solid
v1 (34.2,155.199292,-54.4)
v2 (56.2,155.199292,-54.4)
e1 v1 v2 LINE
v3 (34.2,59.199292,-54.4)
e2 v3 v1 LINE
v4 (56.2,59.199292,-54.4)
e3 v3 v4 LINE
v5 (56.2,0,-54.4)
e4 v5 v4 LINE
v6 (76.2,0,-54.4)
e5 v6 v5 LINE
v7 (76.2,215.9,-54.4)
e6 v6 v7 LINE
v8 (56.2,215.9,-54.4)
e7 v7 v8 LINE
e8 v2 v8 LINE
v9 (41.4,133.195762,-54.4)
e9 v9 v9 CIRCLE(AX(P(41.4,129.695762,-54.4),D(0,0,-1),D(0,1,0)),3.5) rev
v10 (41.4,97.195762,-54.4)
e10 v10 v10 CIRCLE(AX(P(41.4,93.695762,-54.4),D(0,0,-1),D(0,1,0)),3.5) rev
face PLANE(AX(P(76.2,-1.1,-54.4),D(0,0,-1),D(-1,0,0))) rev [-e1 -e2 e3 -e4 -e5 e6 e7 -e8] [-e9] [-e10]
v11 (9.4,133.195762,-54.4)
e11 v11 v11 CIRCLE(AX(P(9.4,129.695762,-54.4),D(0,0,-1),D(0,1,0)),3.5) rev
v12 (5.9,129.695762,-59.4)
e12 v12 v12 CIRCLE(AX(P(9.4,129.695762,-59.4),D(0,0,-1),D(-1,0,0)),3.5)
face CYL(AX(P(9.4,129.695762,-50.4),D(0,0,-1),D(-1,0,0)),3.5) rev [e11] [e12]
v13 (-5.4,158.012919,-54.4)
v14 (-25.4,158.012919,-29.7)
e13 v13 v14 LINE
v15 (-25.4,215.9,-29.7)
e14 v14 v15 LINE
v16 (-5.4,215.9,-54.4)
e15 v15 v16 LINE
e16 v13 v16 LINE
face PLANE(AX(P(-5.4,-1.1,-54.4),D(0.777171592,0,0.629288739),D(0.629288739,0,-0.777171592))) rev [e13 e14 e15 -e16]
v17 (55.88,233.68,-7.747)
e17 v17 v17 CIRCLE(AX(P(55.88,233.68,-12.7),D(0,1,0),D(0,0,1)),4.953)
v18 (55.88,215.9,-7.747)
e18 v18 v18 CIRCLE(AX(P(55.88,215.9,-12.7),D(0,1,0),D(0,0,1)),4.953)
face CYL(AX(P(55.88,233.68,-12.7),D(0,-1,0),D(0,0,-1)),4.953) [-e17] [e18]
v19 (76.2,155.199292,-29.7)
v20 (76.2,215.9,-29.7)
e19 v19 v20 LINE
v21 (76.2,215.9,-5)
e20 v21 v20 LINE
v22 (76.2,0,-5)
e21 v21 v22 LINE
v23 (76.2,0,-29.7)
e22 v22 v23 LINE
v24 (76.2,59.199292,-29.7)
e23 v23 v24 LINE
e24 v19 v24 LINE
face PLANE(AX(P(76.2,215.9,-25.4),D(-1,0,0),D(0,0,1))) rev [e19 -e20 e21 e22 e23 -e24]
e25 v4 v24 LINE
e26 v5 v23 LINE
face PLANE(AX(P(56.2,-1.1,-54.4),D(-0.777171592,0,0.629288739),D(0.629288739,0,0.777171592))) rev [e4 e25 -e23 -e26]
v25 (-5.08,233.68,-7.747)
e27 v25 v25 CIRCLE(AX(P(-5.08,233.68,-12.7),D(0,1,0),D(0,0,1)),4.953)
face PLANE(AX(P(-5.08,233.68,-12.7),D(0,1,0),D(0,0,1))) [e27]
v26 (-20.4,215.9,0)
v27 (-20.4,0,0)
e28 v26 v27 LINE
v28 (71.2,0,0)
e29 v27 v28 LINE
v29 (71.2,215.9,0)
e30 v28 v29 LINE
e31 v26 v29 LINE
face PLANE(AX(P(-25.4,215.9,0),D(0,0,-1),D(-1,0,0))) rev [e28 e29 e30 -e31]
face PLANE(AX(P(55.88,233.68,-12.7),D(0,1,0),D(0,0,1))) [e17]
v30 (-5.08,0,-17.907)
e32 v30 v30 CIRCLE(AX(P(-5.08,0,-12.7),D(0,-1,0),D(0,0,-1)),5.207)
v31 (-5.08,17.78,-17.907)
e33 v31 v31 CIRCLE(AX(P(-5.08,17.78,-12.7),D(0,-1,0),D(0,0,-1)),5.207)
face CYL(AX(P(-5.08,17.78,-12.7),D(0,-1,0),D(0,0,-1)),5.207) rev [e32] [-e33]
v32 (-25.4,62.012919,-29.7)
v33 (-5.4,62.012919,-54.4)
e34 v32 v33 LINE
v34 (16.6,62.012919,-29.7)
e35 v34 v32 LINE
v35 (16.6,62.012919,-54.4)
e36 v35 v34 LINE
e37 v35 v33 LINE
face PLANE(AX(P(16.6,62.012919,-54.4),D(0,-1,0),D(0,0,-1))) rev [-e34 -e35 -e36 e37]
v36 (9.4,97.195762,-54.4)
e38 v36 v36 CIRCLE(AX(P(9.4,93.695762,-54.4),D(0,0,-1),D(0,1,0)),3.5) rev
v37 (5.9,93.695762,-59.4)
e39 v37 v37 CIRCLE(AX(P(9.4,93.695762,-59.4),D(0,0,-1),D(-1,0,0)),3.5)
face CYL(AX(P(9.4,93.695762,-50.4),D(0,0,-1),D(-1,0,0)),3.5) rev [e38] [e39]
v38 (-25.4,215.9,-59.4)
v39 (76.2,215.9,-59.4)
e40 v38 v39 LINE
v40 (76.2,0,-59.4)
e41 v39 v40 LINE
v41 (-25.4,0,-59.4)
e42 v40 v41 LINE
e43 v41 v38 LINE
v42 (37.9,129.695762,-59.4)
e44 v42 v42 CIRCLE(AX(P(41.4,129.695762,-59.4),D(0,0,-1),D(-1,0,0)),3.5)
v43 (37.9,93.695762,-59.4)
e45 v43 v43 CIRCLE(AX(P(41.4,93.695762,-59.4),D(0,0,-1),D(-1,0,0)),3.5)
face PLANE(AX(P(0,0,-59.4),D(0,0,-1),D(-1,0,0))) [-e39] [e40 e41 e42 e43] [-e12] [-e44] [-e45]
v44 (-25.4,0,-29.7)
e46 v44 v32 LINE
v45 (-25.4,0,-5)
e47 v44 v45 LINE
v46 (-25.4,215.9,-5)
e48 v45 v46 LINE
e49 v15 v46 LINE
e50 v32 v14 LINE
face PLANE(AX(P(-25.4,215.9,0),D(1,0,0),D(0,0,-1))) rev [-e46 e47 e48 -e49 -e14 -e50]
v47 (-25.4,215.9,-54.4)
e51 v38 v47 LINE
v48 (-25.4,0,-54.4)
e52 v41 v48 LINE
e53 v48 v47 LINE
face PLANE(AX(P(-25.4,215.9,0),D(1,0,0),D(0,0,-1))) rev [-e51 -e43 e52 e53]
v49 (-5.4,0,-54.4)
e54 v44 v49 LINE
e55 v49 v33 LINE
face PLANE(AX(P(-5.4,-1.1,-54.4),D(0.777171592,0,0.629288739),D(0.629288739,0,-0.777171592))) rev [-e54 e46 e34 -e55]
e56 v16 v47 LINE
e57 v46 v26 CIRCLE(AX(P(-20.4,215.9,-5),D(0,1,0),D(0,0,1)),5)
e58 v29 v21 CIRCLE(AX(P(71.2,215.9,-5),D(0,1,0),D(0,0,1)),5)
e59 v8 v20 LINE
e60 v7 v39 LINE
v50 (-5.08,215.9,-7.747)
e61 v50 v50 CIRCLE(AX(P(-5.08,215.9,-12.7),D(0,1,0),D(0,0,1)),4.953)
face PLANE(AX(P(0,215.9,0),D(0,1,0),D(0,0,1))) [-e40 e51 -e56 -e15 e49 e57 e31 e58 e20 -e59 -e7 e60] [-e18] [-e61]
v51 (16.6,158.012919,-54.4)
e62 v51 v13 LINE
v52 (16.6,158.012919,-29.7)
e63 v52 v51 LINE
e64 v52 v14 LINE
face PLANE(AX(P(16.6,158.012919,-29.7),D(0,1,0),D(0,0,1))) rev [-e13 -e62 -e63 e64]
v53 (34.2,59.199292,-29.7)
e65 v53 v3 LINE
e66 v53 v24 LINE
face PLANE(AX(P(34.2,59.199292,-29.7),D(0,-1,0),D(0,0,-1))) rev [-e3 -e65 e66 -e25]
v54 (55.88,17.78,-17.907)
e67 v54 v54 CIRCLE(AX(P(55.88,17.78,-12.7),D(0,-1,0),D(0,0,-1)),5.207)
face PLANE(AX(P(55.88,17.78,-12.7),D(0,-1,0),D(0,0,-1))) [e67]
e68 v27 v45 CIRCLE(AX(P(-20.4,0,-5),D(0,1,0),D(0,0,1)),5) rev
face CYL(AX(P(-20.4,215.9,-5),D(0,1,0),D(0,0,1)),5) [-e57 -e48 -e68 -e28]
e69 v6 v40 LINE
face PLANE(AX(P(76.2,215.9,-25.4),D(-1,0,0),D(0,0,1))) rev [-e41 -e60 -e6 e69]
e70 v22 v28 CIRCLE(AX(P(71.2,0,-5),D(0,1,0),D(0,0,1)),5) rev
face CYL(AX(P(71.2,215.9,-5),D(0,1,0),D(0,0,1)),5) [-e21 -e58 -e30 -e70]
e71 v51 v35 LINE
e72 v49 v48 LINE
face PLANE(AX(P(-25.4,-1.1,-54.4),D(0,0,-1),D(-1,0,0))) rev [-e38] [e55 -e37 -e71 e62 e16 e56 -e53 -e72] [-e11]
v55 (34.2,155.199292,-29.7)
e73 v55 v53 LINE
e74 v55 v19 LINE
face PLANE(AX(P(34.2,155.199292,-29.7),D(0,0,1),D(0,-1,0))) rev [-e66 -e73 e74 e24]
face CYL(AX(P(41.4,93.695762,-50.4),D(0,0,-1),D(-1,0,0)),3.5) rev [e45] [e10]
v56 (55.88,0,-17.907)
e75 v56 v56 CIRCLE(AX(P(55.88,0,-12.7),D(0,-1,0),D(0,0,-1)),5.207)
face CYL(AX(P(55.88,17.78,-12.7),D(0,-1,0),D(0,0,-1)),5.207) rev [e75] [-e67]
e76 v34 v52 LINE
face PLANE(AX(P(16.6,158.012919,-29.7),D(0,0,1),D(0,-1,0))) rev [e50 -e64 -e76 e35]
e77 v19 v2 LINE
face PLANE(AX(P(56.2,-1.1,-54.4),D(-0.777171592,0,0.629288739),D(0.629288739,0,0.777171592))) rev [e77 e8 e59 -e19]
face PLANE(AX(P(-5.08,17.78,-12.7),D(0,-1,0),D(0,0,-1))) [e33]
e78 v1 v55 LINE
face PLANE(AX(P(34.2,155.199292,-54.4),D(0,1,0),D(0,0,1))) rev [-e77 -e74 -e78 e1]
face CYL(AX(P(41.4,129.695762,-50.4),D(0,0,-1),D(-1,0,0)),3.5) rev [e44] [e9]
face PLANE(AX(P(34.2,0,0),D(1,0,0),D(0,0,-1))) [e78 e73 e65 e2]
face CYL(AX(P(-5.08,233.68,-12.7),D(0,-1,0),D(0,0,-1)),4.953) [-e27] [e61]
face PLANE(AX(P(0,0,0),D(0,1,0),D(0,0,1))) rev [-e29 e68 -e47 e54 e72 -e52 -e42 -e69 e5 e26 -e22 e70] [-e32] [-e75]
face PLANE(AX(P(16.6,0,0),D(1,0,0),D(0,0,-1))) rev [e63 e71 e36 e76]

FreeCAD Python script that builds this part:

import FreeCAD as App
import Part
import Sketcher


def edges_at(feature, points):
    """Names of the edges that pass closest to the given points."""
    edges = feature.Shape.Edges
    near = lambda p: min(range(len(edges)), key=lambda i: edges[i].distToShape(Part.Vertex(*p))[0])
    return sorted({f"Edge{near(p) + 1}" for p in points})

doc = App.newDocument("Part")
body = doc.addObject("PartDesign::Body", "Body")

sketch1 = body.newObject("Sketcher::SketchObject", "Sketch")
sketch1.AttachmentSupport = (doc.getObject("XZ_Plane"), [""])
sketch1.MapMode = "FlatFace"
sketch1.addGeometry([
    Part.LineSegment(App.Vector(-25, -25, 0), App.Vector(-25, 0, 0)),
    Part.LineSegment(App.Vector(-25, 0, 0), App.Vector(76, 0, 0)),
    Part.LineSegment(App.Vector(76, 0, 0), App.Vector(76, -25, 0)),
    Part.LineSegment(App.Vector(76, -25, 0), App.Vector(-25, -25, 0)),
], False)
sketch1.addConstraint([
    Sketcher.Constraint("Coincident", 0, 2, 1, 1),
    Sketcher.Constraint("Coincident", 1, 2, 2, 1),
    Sketcher.Constraint("Coincident", 2, 2, 3, 1),
    Sketcher.Constraint("Coincident", 3, 2, 0, 1),
    Sketcher.Constraint("Vertical", 0),
    Sketcher.Constraint("Horizontal", 1),
    Sketcher.Constraint("Vertical", 2),
    Sketcher.Constraint("Horizontal", 3),
    Sketcher.Constraint("PointOnObject", 0, 2, -1),
    Sketcher.Constraint("DistanceX", 1, 1, 1, 2, 101.6),
    Sketcher.Constraint("DistanceY", 0, 1, 0, 2, 25.4),
    Sketcher.Constraint("DistanceX", 0, 2, -1, 1, 25.4),
])
pad1 = body.newObject("PartDesign::Pad", "Pad")
pad1.Profile = sketch1
pad1.Length = 215.9
pad1.Reversed = True

sketch2 = body.newObject("Sketcher::SketchObject", "Sketch001")
sketch2.AttachmentSupport = (doc.getObject("XZ_Plane"), [""])
sketch2.MapMode = "FlatFace"
sketch2.addGeometry([
    Part.Circle(App.Vector(-5, -13, 0), App.Vector(0, 0, 1), 5),
    Part.Circle(App.Vector(56, -13, 0), App.Vector(0, 0, 1), 5),
], False)
sketch2.addConstraint([
    Sketcher.Constraint("Equal", 0, 1),
    Sketcher.Constraint("Horizontal", 0, 3, 1, 3),
    Sketcher.Constraint("Diameter", 0, 10.414),
    Sketcher.Constraint("DistanceY", 0, 3, -1, 1, 12.7),
    Sketcher.Constraint("DistanceX", 0, 3, -1, 1, 5.08),
    Sketcher.Constraint("DistanceX", -1, 1, 1, 3, 55.88),
])
pocket1 = body.newObject("PartDesign::Pocket", "Pocket")
pocket1.Profile = sketch2
pocket1.Length = 17.78

sketch3 = body.newObject("Sketcher::SketchObject", "Sketch002")
sketch3.AttachmentSupport = (doc.getObject("XZ_Plane"), [""])
sketch3.MapMode = "FlatFace"
sketch3.AttachmentOffset = App.Placement(App.Vector(0, 0, -215.9), App.Rotation())
sketch3.addGeometry([
    Part.Circle(App.Vector(-5.1, -12.7, 0), App.Vector(0, 0, 1), 5),
    Part.Circle(App.Vector(55.9, -12.7, 0), App.Vector(0, 0, 1), 5),
], False)
sketch3.addConstraint([
    Sketcher.Constraint("Equal", 0, 1),
    Sketcher.Constraint("Horizontal", 0, 3, 1, 3),
    Sketcher.Constraint("Diameter", 0, 9.906),
    Sketcher.Constraint("DistanceY", 0, 3, -1, 1, 12.7),
    Sketcher.Constraint("DistanceX", 0, 3, -1, 1, 5.08),
    Sketcher.Constraint("DistanceX", -1, 1, 1, 3, 55.88),
])
pad2 = body.newObject("PartDesign::Pad", "Pad001")
pad2.Profile = sketch3
pad2.Length = 17.78
pad2.Reversed = True

sketch4 = body.newObject("Sketcher::SketchObject", "Sketch003")
sketch4.AttachmentSupport = (doc.getObject("XY_Plane"), [""])
sketch4.MapMode = "FlatFace"
sketch4.AttachmentOffset = App.Placement(App.Vector(0, 0, -25.4), App.Rotation())
sketch4.addGeometry([
    Part.LineSegment(App.Vector(76, 216, 0), App.Vector(76, 0, 0)),
    Part.LineSegment(App.Vector(76, 0, 0), App.Vector(-25, 0, 0)),
    Part.LineSegment(App.Vector(-25, 0, 0), App.Vector(-25, 216, 0)),
    Part.LineSegment(App.Vector(-25, 216, 0), App.Vector(76, 216, 0)),
], False)
sketch4.addConstraint([
    Sketcher.Constraint("Coincident", 0, 2, 1, 1),
    Sketcher.Constraint("Coincident", 1, 2, 2, 1),
    Sketcher.Constraint("Coincident", 2, 2, 3, 1),
    Sketcher.Constraint("Coincident", 3, 2, 0, 1),
    Sketcher.Constraint("Vertical", 0),
    Sketcher.Constraint("Horizontal", 1),
    Sketcher.Constraint("Vertical", 2),
    Sketcher.Constraint("Horizontal", 3),
    Sketcher.Constraint("PointOnObject", 0, 2, -1),
    Sketcher.Constraint("DistanceX", 1, 2, 1, 1, 101.6),
    Sketcher.Constraint("DistanceY", 0, 2, 0, 1, 215.9),
    Sketcher.Constraint("DistanceX", -1, 1, 0, 2, 76.2),
])
pad3 = body.newObject("PartDesign::Pad", "Pad002")
pad3.Profile = sketch4
pad3.Length = 34
pad3.Reversed = True

sketch5 = body.newObject("Sketcher::SketchObject", "Sketch004")
sketch5.AttachmentSupport = (doc.getObject("XZ_Plane"), [""])
sketch5.MapMode = "FlatFace"
sketch5.AttachmentOffset = App.Placement(App.Vector(0, 0, -215.9), App.Rotation())
sketch5.addGeometry([
    Part.LineSegment(App.Vector(-5, -54, 0), App.Vector(-25, -54, 0)),
    Part.LineSegment(App.Vector(-25, -54, 0), App.Vector(-25, -30, 0)),
    Part.LineSegment(App.Vector(-25, -30, 0), App.Vector(-5, -54, 0)),
    Part.LineSegment(App.Vector(76, -54, 0), App.Vector(56, -54, 0)),
    Part.LineSegment(App.Vector(56, -54, 0), App.Vector(76, -30, 0)),
    Part.LineSegment(App.Vector(76, -30, 0), App.Vector(76, -54, 0)),
], False)
sketch5.addConstraint([
    Sketcher.Constraint("Coincident", 0, 2, 1, 1),
    Sketcher.Constraint("Coincident", 1, 2, 2, 1),
    Sketcher.Constraint("Coincident", 2, 2, 0, 1),
    Sketcher.Constraint("Coincident", 3, 2, 4, 1),
    Sketcher.Constraint("Coincident", 4, 2, 5, 1),
    Sketcher.Constraint("Coincident", 5, 2, 3, 1),
    Sketcher.Constraint("Horizontal", 0),
    Sketcher.Constraint("Vertical", 1),
    Sketcher.Constraint("Horizontal", 3),
    Sketcher.Constraint("Vertical", 5),
    Sketcher.Constraint("Horizontal", 2, 2, 3, 2),
    Sketcher.Constraint("Horizontal", 1, 2, 4, 2),
    Sketcher.Constraint("Equal", 0, 3),
    Sketcher.Constraint("DistanceX", 0, 2, 0, 1, 20.0),
    Sketcher.Constraint("DistanceY", 1, 1, 1, 2, 24.7),
    Sketcher.Constraint("DistanceX", 0, 2, -1, 1, 25.4),
    Sketcher.Constraint("DistanceY", 0, 2, -1, 1, 54.4),
    Sketcher.Constraint("DistanceX", -1, 1, 3, 2, 56.2),
])
pocket2 = body.newObject("PartDesign::Pocket", "Pocket001")
pocket2.Profile = sketch5
pocket2.Length = 217
pocket2.Reversed = True

sketch6 = body.newObject("Sketcher::SketchObject", "Sketch005")
sketch6.AttachmentSupport = (doc.getObject("XY_Plane"), [""])
sketch6.MapMode = "FlatFace"
sketch6.AttachmentOffset = App.Placement(App.Vector(0, 0, -59.4), App.Rotation())
sketch6.addGeometry([
    Part.Circle(App.Vector(41.4, 129.7, 0), App.Vector(0, 0, 1), 3.5),
    Part.Circle(App.Vector(9.4, 129.7, 0), App.Vector(0, 0, 1), 3.5),
    Part.Circle(App.Vector(41.4, 93.7, 0), App.Vector(0, 0, 1), 3.5),
    Part.Circle(App.Vector(9.4, 93.7, 0), App.Vector(0, 0, 1), 3.5),
], False)
sketch6.addConstraint([
    Sketcher.Constraint("Equal", 0, 1),
    Sketcher.Constraint("Equal", 1, 2),
    Sketcher.Constraint("Equal", 2, 3),
    Sketcher.Constraint("Horizontal", 0, 3, 1, 3),
    Sketcher.Constraint("Horizontal", 2, 3, 3, 3),
    Sketcher.Constraint("Vertical", 0, 3, 2, 3),
    Sketcher.Constraint("Vertical", 1, 3, 3, 3),
    Sketcher.Constraint("Diameter", 0, 7.0),
    Sketcher.Constraint("DistanceX", 1, 3, 0, 3, 32.0),
    Sketcher.Constraint("DistanceY", 2, 3, 0, 3, 36.0),
    Sketcher.Constraint("DistanceX", -1, 1, 0, 3, 41.4),
    Sketcher.Constraint("DistanceY", -1, 1, 0, 3, 129.695762),
])
pocket3 = body.newObject("PartDesign::Pocket", "Pocket002")
pocket3.Profile = sketch6
pocket3.Length = 9
pocket3.Reversed = True
doc.recompute()

fillet = body.newObject("PartDesign::Fillet", "Fillet")
fillet.Base = (pocket3, edges_at(pocket3, [(-25.4, 107.95, 0)]))
fillet.Radius = 5
doc.recompute()

fillet2 = body.newObject("PartDesign::Fillet", "Fillet001")
fillet2.Base = (fillet, edges_at(fillet, [(76.2, 107.95, 0)]))
fillet2.Radius = 5

sketch7 = body.newObject("Sketcher::SketchObject", "Sketch006")
sketch7.AttachmentSupport = (doc.getObject("YZ_Plane"), [""])
sketch7.MapMode = "FlatFace"
sketch7.AttachmentOffset = App.Placement(App.Vector(0, 0, -25.4), App.Rotation())
sketch7.addGeometry([
    Part.LineSegment(App.Vector(158, -54, 0), App.Vector(62, -54, 0)),
    Part.LineSegment(App.Vector(62, -54, 0), App.Vector(62, -30, 0)),
    Part.LineSegment(App.Vector(62, -30, 0), App.Vector(158, -30, 0)),
    Part.LineSegment(App.Vector(158, -30, 0), App.Vector(158, -54, 0)),
], False)
sketch7.addConstraint([
    Sketcher.Constraint("Coincident", 0, 2, 1, 1),
    Sketcher.Constraint("Coincident", 1, 2, 2, 1),
    Sketcher.Constraint("Coincident", 2, 2, 3, 1),
    Sketcher.Constraint("Coincident", 3, 2, 0, 1),
    Sketcher.Constraint("Horizontal", 0),
    Sketcher.Constraint("Vertical", 1),
    Sketcher.Constraint("Horizontal", 2),
    Sketcher.Constraint("Vertical", 3),
    Sketcher.Constraint("DistanceX", 0, 2, 0, 1, 96.0),
    Sketcher.Constraint("DistanceY", 1, 1, 1, 2, 24.7),
    Sketcher.Constraint("DistanceY", 0, 2, -1, 1, 54.4),
    Sketcher.Constraint("DistanceX", -1, 1, 0, 2, 62.012919),
])
pocket4 = body.newObject("PartDesign::Pocket", "Pocket003")
pocket4.Profile = sketch7
pocket4.Length = 42
pocket4.Reversed = True

sketch8 = body.newObject("Sketcher::SketchObject", "Sketch007")
sketch8.AttachmentSupport = (doc.getObject("YZ_Plane"), [""])
sketch8.MapMode = "FlatFace"
sketch8.AttachmentOffset = App.Placement(App.Vector(0, 0, 76.2), App.Rotation())
sketch8.addGeometry([
    Part.LineSegment(App.Vector(155, -30, 0), App.Vector(59, -30, 0)),
    Part.LineSegment(App.Vector(59, -30, 0), App.Vector(59, -54, 0)),
    Part.LineSegment(App.Vector(59, -54, 0), App.Vector(155, -54, 0)),
    Part.LineSegment(App.Vector(155, -54, 0), App.Vector(155, -30, 0)),
], False)
sketch8.addConstraint([
    Sketcher.Constraint("Coincident", 0, 2, 1, 1),
    Sketcher.Constraint("Coincident", 1, 2, 2, 1),
    Sketcher.Constraint("Coincident", 2, 2, 3, 1),
    Sketcher.Constraint("Coincident", 3, 2, 0, 1),
    Sketcher.Constraint("Horizontal", 0),
    Sketcher.Constraint("Vertical", 1),
    Sketcher.Constraint("Horizontal", 2),
    Sketcher.Constraint("Vertical", 3),
    Sketcher.Constraint("DistanceX", 0, 2, 0, 1, 96.0),
    Sketcher.Constraint("DistanceY", 1, 2, 1, 1, 24.7),
    Sketcher.Constraint("DistanceY", 0, 2, -1, 1, 29.7),
    Sketcher.Constraint("DistanceX", -1, 1, 0, 2, 59.199292),
])
pocket5 = body.newObject("PartDesign::Pocket", "Pocket004")
pocket5.Profile = sketch8
pocket5.Length = 42

doc.recompute()
